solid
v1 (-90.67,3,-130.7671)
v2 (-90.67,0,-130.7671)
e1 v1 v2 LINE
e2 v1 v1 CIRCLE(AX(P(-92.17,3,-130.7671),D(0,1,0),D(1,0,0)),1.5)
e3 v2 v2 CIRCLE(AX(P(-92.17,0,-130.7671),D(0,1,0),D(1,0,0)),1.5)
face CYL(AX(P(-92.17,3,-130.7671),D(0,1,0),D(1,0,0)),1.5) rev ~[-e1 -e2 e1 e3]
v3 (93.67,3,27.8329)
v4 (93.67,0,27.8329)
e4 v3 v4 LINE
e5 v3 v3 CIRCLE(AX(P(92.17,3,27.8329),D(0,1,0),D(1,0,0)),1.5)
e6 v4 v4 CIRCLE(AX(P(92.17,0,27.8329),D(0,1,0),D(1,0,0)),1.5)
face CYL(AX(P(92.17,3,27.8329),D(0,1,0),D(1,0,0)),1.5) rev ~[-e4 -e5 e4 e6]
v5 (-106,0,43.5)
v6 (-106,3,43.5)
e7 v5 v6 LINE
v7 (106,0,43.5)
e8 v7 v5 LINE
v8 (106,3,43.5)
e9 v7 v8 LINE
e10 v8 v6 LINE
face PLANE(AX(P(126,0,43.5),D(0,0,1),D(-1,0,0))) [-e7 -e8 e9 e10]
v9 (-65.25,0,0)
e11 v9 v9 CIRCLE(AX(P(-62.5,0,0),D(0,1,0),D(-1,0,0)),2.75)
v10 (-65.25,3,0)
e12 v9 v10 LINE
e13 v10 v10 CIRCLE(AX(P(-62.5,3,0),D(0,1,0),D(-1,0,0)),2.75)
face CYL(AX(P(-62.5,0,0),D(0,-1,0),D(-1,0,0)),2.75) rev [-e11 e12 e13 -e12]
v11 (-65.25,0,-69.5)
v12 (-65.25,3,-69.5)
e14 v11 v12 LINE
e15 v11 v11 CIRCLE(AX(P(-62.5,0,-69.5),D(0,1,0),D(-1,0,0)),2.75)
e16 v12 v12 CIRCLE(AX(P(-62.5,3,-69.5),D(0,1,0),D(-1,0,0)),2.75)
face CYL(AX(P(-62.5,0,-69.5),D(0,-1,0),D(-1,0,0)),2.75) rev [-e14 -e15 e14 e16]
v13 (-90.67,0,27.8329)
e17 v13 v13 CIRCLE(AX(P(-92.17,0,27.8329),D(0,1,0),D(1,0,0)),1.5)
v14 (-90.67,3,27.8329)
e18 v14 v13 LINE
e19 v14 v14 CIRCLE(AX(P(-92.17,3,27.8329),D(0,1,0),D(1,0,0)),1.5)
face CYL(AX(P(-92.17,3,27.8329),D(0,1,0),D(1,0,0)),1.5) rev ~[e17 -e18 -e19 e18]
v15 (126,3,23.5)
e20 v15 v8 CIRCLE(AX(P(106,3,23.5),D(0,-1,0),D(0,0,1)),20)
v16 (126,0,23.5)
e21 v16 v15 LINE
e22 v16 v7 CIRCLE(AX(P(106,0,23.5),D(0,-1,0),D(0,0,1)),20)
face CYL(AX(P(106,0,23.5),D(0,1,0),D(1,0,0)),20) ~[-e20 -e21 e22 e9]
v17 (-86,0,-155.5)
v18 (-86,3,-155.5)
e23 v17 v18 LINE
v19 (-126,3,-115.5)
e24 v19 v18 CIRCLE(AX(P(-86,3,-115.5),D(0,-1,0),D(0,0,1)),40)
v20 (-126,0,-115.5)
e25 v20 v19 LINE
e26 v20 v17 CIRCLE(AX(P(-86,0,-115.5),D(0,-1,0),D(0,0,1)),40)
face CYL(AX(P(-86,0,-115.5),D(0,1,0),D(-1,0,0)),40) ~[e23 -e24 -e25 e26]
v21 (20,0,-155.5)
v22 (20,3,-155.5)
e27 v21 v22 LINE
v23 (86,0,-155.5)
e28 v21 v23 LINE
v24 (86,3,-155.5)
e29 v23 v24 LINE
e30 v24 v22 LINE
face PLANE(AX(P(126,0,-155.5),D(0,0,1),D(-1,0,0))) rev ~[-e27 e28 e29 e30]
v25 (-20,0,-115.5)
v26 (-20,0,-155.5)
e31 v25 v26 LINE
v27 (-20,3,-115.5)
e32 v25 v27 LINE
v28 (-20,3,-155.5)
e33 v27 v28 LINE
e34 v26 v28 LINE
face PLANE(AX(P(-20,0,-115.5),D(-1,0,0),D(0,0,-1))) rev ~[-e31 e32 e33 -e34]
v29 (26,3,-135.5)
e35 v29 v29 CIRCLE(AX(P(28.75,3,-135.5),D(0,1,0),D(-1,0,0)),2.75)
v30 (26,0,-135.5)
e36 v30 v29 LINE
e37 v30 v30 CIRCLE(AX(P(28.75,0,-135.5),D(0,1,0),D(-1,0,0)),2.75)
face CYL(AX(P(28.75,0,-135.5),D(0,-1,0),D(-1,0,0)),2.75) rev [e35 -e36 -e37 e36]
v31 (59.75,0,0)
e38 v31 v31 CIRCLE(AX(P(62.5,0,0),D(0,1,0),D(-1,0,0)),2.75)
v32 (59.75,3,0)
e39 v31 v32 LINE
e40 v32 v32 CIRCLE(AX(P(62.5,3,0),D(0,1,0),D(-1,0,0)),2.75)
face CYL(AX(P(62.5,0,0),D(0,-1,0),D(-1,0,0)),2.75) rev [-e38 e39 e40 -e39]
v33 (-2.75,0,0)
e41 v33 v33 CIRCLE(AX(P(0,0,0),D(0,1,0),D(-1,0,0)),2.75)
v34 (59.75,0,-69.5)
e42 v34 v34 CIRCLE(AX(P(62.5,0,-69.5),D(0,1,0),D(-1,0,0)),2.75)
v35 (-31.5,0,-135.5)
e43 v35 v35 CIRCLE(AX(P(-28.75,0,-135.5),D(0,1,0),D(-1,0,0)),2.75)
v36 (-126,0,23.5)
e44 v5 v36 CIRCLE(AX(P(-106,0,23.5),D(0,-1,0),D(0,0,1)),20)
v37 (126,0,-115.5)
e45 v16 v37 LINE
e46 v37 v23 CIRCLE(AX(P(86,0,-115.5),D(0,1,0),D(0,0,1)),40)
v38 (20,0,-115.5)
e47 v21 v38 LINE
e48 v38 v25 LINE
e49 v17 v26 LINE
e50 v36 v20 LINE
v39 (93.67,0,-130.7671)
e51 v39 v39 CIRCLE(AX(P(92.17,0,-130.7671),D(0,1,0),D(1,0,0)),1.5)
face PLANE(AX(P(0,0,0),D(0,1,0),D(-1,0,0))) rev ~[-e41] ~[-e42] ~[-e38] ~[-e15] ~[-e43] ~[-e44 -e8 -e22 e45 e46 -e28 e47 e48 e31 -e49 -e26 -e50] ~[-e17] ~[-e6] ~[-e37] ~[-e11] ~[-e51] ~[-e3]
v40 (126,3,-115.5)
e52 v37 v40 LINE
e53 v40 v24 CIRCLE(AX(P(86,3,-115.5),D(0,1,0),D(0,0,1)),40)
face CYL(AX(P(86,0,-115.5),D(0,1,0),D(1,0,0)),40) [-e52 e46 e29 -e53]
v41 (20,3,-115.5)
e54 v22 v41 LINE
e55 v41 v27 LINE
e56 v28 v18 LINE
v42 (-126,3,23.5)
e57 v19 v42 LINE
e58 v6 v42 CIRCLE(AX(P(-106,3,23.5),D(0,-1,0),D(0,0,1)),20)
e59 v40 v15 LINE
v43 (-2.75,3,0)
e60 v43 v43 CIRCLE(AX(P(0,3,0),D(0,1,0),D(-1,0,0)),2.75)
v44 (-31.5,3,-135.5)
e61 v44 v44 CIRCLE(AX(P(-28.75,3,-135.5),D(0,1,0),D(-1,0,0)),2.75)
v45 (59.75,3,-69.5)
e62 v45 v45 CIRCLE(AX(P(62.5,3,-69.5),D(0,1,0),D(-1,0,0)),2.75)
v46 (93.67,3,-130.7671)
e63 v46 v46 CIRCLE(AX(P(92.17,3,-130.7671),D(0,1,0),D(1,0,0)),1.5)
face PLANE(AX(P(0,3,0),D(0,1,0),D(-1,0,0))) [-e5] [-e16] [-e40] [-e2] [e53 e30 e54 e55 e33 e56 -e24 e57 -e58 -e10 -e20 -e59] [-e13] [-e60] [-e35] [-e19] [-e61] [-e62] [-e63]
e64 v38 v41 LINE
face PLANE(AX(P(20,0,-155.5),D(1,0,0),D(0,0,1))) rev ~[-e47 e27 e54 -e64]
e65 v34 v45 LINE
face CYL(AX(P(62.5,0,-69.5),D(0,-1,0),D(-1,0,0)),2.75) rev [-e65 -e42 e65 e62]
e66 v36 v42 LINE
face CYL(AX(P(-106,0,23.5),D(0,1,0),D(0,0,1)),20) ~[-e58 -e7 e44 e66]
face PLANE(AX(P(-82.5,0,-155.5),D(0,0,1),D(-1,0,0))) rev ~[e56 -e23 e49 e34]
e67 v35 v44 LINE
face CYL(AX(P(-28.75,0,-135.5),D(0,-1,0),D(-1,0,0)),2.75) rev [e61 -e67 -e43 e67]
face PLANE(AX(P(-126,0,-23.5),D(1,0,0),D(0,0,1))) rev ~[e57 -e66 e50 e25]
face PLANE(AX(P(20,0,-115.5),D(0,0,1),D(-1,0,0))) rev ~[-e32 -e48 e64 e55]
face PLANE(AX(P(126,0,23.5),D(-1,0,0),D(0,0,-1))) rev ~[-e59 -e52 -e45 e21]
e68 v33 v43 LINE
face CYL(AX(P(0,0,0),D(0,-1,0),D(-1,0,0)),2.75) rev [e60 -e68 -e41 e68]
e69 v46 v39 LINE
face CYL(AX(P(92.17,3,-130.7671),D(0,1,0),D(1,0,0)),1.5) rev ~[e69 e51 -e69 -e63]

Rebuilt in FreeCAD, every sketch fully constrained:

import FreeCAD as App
import Part
import Sketcher

V = App.Vector


def edges_at(feature, points):
    """Names of the edges that pass closest to the given points."""
    edges = feature.Shape.Edges
    near = lambda p: min(range(len(edges)), key=lambda i: edges[i].distToShape(Part.Vertex(*p))[0])
    return sorted({f"Edge{near(p) + 1}" for p in points})

doc = App.newDocument("Part")
body = doc.addObject("PartDesign::Body", "Body")

sketch1 = body.newObject("Sketcher::SketchObject", "Sketch")
sketch1.AttachmentSupport = (doc.getObject("XZ_Plane"), [""])
sketch1.MapMode = "FlatFace"
sketch1.addGeometry([
    Part.LineSegment(V(126, -155.5, 0), V(20, -155.5, 0)),
    Part.LineSegment(V(20, -155.5, 0), V(20, -115.5, 0)),
    Part.LineSegment(V(20, -115.5, 0), V(-20, -115.5, 0)),
    Part.LineSegment(V(-20, -115.5, 0), V(-20, -155.5, 0)),
    Part.LineSegment(V(-20, -155.5, 0), V(-126, -155.5, 0)),
    Part.LineSegment(V(-126, -155.5, 0), V(-126, 43.5, 0)),
    Part.LineSegment(V(-126, 43.5, 0), V(126, 43.5, 0)),
    Part.LineSegment(V(126, 43.5, 0), V(126, -155.5, 0)),
    Part.Circle(V(62.5, 0, 0), V(0, 0, 1), 2.8),
    Part.Circle(V(0, 0, 0), V(0, 0, 1), 2.8),
    Part.Circle(V(-62.5, 0, 0), V(0, 0, 1), 2.8),
    Part.Circle(V(28.8, -135.5, 0), V(0, 0, 1), 2.8),
    Part.Circle(V(62.5, -69.5, 0), V(0, 0, 1), 2.8),
    Part.Circle(V(-28.8, -135.5, 0), V(0, 0, 1), 2.8),
    Part.Circle(V(-62.5, -69.5, 0), V(0, 0, 1), 2.8),
], False)
sketch1.addConstraint([
    Sketcher.Constraint("Coincident", 0, 2, 1, 1),
    Sketcher.Constraint("Coincident", 1, 2, 2, 1),
    Sketcher.Constraint("Coincident", 2, 2, 3, 1),
    Sketcher.Constraint("Coincident", 3, 2, 4, 1),
    Sketcher.Constraint("Coincident", 4, 2, 5, 1),
    Sketcher.Constraint("Coincident", 5, 2, 6, 1),
    Sketcher.Constraint("Coincident", 6, 2, 7, 1),
    Sketcher.Constraint("Coincident", 7, 2, 0, 1),
    Sketcher.Constraint("Horizontal", 0),
    Sketcher.Constraint("Vertical", 1),
    Sketcher.Constraint("Horizontal", 2),
    Sketcher.Constraint("Vertical", 3),
    Sketcher.Constraint("Horizontal", 4),
    Sketcher.Constraint("Vertical", 5),
    Sketcher.Constraint("Horizontal", 6),
    Sketcher.Constraint("Vertical", 7),
    Sketcher.Constraint("Coincident", 9, 3, -1, 1),
    Sketcher.Constraint("Equal", 8, 9),
    Sketcher.Constraint("Equal", 9, 10),
    Sketcher.Constraint("Equal", 10, 11),
    Sketcher.Constraint("Equal", 11, 12),
    Sketcher.Constraint("Equal", 12, 13),
    Sketcher.Constraint("Equal", 13, 14),
    Sketcher.Constraint("Symmetric", 8, 3, 10, 3, -1, 1),
    Sketcher.Constraint("Symmetric", 11, 3, 13, 3, -2),
    Sketcher.Constraint("Symmetric", 12, 3, 14, 3, -2),
    Sketcher.Constraint("Symmetric", 0, 2, 3, 2, -2),
    Sketcher.Constraint("PointOnObject", 8, 3, -1),
    Sketcher.Constraint("Vertical", 8, 3, 12, 3),
    Sketcher.Constraint("Equal", 0, 4),
    Sketcher.Constraint("Equal", 2, 1),
    Sketcher.Constraint("Diameter", 8, 5.5),
    Sketcher.Constraint("DistanceX", 2, 2, 2, 1, 40.0),
    Sketcher.Constraint("DistanceX", 6, 1, 6, 2, 252.0),
    Sketcher.Constraint("DistanceY", 0, 2, 11, 3, 20.0),
    Sketcher.Constraint("DistanceY", 5, 1, 5, 2, 199.0),
    Sketcher.Constraint("DistanceX", 10, 3, 8, 3, 125.0),
    Sketcher.Constraint("DistanceY", 11, 3, 12, 3, 66.0),
    Sketcher.Constraint("DistanceY", 11, 3, -1, 1, 135.5),
    Sketcher.Constraint("DistanceX", 13, 3, 11, 3, 57.5),
])
pad1 = body.newObject("PartDesign::Pad", "Pad")
pad1.Profile = sketch1
pad1.Length = 3
pad1.Reversed = True
doc.recompute()

fillet = body.newObject("PartDesign::Fillet", "Fillet")
fillet.Base = (pad1, edges_at(pad1, [(126, 1.5, -155.5), (-126, 1.5, -155.5)]))
fillet.Radius = 40
doc.recompute()

fillet2 = body.newObject("PartDesign::Fillet", "Fillet001")
fillet2.Base = (fillet, edges_at(fillet, [(126, 1.5, 43.5), (-126, 1.5, 43.5)]))
fillet2.Radius = 20

sketch2 = body.newObject("Sketcher::SketchObject", "Sketch001")
sketch2.AttachmentSupport = (doc.getObject("XZ_Plane"), [""])
sketch2.MapMode = "FlatFace"
sketch2.AttachmentOffset = App.Placement(V(0, 0, -3), App.Rotation())
sketch2.addGeometry([
    Part.Circle(V(-92.2, -130.8, 0), V(0, 0, 1), 1.5),
    Part.Circle(V(92.2, -130.8, 0), V(0, 0, 1), 1.5),
    Part.Circle(V(-92.2, 27.8, 0), V(0, 0, 1), 1.5),
    Part.Circle(V(92.2, 27.8, 0), V(0, 0, 1), 1.5),
], False)
sketch2.addConstraint([
    Sketcher.Constraint("Equal", 0, 1),
    Sketcher.Constraint("Equal", 1, 2),
    Sketcher.Constraint("Equal", 2, 3),
    Sketcher.Constraint("Symmetric", 0, 3, 1, 3, -2),
    Sketcher.Constraint("Symmetric", 2, 3, 3, 3, -2),
    Sketcher.Constraint("Vertical", 0, 3, 2, 3),
    Sketcher.Constraint("Diameter", 0, 3.0),
    Sketcher.Constraint("DistanceY", 0, 3, 2, 3, 158.6),
    Sketcher.Constraint("DistanceX", 0, 3, 1, 3, 184.34),
    Sketcher.Constraint("DistanceY", 0, 3, -1, 1, 130.767),
])
pocket1 = body.newObject("PartDesign::Pocket", "Pocket")
pocket1.Profile = sketch2
pocket1.Type = "ThroughAll"
pocket1.Reversed = True

doc.recompute()
